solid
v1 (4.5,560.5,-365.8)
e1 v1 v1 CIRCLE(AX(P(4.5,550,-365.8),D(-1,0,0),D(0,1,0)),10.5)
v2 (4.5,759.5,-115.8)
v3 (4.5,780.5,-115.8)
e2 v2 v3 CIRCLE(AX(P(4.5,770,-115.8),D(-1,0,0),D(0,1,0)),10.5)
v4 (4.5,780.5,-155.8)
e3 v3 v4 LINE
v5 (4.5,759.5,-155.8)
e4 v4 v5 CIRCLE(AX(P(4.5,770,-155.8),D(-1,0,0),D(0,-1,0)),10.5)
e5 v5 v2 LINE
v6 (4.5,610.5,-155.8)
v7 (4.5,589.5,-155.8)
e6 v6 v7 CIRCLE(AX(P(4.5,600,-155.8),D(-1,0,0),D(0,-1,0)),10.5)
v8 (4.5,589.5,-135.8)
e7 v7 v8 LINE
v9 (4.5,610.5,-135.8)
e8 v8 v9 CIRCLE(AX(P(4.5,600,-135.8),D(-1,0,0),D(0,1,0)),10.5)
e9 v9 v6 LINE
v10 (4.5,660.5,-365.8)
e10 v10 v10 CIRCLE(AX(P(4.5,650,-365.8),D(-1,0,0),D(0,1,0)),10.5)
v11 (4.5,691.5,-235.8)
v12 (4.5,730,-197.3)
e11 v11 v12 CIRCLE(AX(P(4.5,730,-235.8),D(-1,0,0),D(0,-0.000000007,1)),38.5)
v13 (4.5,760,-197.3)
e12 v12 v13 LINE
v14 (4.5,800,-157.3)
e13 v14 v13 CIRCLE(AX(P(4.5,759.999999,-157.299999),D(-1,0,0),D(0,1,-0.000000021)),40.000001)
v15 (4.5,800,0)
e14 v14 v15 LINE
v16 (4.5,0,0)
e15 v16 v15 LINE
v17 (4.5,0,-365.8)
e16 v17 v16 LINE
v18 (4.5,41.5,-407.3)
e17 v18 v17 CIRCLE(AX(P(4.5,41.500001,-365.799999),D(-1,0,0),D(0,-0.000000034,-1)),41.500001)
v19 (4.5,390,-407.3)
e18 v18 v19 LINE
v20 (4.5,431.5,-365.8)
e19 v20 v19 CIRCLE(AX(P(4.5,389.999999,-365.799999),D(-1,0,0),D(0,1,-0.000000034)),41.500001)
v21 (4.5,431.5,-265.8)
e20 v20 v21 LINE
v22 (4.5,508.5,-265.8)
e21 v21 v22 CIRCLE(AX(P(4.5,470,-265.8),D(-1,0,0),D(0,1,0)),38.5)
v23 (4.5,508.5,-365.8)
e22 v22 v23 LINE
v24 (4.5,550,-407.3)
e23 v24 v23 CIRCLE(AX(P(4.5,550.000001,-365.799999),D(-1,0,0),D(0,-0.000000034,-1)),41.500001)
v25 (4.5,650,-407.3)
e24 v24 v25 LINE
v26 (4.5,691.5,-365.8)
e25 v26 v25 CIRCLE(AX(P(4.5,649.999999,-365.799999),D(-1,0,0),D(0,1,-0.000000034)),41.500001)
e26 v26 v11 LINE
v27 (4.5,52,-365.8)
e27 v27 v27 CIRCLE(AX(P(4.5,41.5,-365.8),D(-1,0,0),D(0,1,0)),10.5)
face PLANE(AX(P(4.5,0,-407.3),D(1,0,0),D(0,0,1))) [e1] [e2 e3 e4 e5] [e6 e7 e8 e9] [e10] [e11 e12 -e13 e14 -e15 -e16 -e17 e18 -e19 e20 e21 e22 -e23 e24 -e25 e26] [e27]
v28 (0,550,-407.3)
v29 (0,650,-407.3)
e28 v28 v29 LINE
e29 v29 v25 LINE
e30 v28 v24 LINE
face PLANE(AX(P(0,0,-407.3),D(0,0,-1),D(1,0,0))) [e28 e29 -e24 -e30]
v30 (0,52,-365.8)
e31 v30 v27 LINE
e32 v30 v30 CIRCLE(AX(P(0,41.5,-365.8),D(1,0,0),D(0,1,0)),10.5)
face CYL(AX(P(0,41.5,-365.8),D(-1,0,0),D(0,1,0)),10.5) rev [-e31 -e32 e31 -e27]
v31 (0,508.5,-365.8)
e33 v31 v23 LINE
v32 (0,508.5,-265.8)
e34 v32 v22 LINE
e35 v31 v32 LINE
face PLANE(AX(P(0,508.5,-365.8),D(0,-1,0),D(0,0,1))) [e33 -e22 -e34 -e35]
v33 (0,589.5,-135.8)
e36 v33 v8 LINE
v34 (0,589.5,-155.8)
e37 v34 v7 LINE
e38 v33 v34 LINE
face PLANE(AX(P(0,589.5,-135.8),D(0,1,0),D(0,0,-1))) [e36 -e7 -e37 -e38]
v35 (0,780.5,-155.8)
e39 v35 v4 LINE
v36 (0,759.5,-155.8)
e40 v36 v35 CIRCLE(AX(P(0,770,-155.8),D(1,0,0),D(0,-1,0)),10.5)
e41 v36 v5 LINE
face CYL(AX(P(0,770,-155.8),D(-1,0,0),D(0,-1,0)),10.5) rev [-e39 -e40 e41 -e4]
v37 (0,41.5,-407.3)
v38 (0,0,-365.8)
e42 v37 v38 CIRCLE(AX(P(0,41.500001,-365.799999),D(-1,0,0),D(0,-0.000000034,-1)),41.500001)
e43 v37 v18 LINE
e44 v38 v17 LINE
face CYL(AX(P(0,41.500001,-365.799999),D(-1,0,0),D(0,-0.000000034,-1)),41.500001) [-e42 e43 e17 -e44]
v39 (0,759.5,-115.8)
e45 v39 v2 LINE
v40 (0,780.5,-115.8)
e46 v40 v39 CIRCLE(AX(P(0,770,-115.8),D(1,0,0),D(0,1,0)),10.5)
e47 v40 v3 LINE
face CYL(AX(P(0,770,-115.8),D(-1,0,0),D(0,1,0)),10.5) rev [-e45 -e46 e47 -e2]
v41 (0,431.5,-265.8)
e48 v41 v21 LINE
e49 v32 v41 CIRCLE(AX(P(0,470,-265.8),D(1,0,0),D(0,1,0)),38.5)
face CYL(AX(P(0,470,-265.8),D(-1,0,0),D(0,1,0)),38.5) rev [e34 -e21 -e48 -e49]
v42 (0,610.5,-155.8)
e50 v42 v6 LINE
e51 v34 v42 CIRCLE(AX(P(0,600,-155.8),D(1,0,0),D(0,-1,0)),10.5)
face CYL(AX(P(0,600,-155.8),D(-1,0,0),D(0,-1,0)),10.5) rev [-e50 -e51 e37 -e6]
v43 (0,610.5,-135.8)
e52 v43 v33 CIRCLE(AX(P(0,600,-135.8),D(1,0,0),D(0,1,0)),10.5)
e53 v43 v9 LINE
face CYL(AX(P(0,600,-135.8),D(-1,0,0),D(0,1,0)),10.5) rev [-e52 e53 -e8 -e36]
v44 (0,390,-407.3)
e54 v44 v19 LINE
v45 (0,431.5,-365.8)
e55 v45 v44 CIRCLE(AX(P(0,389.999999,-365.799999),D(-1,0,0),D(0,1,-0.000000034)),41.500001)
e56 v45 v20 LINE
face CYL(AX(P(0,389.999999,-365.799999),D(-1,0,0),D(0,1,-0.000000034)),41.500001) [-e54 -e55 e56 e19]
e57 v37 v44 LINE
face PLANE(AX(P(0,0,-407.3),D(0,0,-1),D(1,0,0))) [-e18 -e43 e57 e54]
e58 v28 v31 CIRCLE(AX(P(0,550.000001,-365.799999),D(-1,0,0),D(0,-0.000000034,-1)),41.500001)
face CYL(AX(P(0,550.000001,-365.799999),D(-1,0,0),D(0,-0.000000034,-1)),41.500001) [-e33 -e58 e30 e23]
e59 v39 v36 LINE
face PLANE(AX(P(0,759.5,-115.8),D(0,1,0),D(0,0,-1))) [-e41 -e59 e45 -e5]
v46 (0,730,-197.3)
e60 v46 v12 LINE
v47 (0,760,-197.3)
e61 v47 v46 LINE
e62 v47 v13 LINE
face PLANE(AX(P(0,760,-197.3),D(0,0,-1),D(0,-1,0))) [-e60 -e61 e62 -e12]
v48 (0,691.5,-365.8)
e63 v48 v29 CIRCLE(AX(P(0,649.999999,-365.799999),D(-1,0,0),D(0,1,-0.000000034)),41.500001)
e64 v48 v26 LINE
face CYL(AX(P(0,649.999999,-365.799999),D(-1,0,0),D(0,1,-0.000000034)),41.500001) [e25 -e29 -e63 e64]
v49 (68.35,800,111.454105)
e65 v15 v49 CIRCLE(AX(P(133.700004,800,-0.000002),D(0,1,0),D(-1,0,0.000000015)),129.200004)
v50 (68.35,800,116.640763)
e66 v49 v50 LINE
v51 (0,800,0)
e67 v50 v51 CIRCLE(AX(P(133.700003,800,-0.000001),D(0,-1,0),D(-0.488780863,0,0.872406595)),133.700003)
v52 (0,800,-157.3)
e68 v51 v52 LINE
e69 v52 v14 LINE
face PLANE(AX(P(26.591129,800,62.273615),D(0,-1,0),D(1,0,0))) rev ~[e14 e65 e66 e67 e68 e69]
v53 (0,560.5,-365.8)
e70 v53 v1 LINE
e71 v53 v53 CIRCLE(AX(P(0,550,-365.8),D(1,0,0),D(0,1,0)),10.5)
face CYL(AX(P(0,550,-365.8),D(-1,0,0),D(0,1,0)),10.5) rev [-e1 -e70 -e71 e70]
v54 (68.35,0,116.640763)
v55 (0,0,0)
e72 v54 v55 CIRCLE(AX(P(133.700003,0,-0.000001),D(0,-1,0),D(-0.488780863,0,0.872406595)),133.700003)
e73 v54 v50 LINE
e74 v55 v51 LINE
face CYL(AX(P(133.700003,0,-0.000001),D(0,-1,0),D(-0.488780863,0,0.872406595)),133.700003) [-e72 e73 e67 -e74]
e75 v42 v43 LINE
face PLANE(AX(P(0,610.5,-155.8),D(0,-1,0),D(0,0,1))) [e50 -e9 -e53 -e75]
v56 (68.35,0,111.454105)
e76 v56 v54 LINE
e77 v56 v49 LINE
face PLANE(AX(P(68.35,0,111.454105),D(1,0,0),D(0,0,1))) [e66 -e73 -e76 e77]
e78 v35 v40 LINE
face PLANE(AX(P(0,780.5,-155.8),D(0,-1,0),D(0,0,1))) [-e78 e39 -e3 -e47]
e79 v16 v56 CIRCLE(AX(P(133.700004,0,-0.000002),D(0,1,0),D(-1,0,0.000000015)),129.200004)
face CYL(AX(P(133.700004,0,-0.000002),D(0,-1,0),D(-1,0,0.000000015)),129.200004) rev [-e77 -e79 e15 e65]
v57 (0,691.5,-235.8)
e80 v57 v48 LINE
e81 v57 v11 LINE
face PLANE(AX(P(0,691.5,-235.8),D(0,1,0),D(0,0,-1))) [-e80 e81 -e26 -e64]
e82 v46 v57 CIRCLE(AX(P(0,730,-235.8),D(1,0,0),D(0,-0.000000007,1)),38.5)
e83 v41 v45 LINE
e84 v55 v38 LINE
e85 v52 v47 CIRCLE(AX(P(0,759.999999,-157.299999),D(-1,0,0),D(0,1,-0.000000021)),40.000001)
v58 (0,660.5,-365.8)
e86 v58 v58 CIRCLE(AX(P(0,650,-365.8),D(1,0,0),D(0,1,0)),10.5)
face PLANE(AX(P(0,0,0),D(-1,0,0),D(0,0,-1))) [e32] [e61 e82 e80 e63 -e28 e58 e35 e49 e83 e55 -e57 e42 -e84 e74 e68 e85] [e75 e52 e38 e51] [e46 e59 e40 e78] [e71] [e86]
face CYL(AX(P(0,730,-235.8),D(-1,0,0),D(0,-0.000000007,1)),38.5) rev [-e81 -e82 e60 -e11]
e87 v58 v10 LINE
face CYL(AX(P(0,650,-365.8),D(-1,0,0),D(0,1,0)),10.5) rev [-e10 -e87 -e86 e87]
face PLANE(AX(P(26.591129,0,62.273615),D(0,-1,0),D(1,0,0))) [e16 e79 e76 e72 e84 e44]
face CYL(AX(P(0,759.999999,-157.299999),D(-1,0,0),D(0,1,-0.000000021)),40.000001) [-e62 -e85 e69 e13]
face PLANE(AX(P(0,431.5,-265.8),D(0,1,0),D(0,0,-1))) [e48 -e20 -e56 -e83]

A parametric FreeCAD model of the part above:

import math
import FreeCAD as App
import Part
import Sketcher
Q = App.Units.Quantity

doc = App.newDocument("Part")
body = doc.addObject("PartDesign::Body", "Body")

sketch1 = body.newObject("Sketcher::SketchObject", "Sketch")
sketch1.AttachmentSupport = (doc.getObject("XZ_Plane"), [""])
sketch1.MapMode = "FlatFace"
sketch1.addGeometry([
    Part.LineSegment(App.Vector(68.3, 111.5, 0), App.Vector(68.3, 116.6, 0)),
    Part.ArcOfCircle(Part.Circle(App.Vector(133.7, 0, 0), App.Vector(0, 0, 1), 133.7), math.radians(119), math.radians(180)),
    Part.LineSegment(App.Vector(0, 0, 0), App.Vector(0, -407.3, 0)),
    Part.LineSegment(App.Vector(0, -407.3, 0), App.Vector(4.5, -407.3, 0)),
    Part.LineSegment(App.Vector(4.5, -407.3, 0), App.Vector(4.5, 0, 0)),
    Part.ArcOfCircle(Part.Circle(App.Vector(133.7, 0, 0), App.Vector(0, 0, 1), 129.2), math.radians(120), math.radians(180)),
], False)
sketch1.addConstraint([
    Sketcher.Constraint("Coincident", 0, 2, 1, 1),
    Sketcher.Constraint("Tangent", 1, 2, 2, 1),
    Sketcher.Constraint("Coincident", 2, 2, 3, 1),
    Sketcher.Constraint("Coincident", 3, 2, 4, 1),
    Sketcher.Constraint("Tangent", 4, 2, 5, 2),
    Sketcher.Constraint("Coincident", 5, 1, 0, 1),
    Sketcher.Constraint("Vertical", 0),
    Sketcher.Constraint("Vertical", 2),
    Sketcher.Constraint("Horizontal", 3),
    Sketcher.Constraint("Vertical", 4),
    Sketcher.Constraint("Coincident", 1, 2, -1, 1),
    Sketcher.Constraint("Coincident", 5, 3, 1, 3),
    Sketcher.Constraint("DistanceX", 3, 1, 3, 2, Q("4.5 mm")),
    Sketcher.Constraint("DistanceY", 2, 2, 2, 1, Q("407.3 mm")),
    Sketcher.Constraint("DistanceX", -1, 1, 0, 2, Q("68.35 mm")),
    Sketcher.Constraint("Radius", 1, Q("133.700003 mm")),
])
pad1 = body.newObject("PartDesign::Pad", "Pad")
pad1.Profile = sketch1
pad1.Length = 800
pad1.Reversed = True

sketch2 = body.newObject("Sketcher::SketchObject", "Sketch001")
sketch2.AttachmentSupport = (doc.getObject("YZ_Plane"), [""])
sketch2.MapMode = "FlatFace"
sketch2.addGeometry([
    Part.ArcOfCircle(Part.Circle(App.Vector(390, -366, 0), App.Vector(0, 0, 1), 42), math.radians(-90), math.radians(0)),
    Part.LineSegment(App.Vector(390, -407, 0), App.Vector(550, -407, 0)),
    Part.ArcOfCircle(Part.Circle(App.Vector(550, -366, 0), App.Vector(0, 0, 1), 42), math.radians(-180), math.radians(-90)),
    Part.LineSegment(App.Vector(508, -366, 0), App.Vector(508, -266, 0)),
    Part.ArcOfCircle(Part.Circle(App.Vector(470, -266, 0), App.Vector(0, 0, 1), 38), math.radians(0), math.radians(180)),
    Part.LineSegment(App.Vector(432, -266, 0), App.Vector(432, -366, 0)),
    Part.LineSegment(App.Vector(800, -407, 0), App.Vector(800, -157, 0)),
    Part.ArcOfCircle(Part.Circle(App.Vector(760, -157, 0), App.Vector(0, 0, 1), 40), math.radians(-90), math.radians(0)),
    Part.LineSegment(App.Vector(760, -197, 0), App.Vector(730, -197, 0)),
    Part.ArcOfCircle(Part.Circle(App.Vector(730, -236, 0), App.Vector(0, 0, 1), 39), math.radians(90), math.radians(180)),
    Part.LineSegment(App.Vector(692, -236, 0), App.Vector(692, -366, 0)),
    Part.ArcOfCircle(Part.Circle(App.Vector(650, -366, 0), App.Vector(0, 0, 1), 42), math.radians(-90), math.radians(0)),
    Part.LineSegment(App.Vector(650, -407, 0), App.Vector(800, -407, 0)),
    Part.ArcOfCircle(Part.Circle(App.Vector(42, -366, 0), App.Vector(0, 0, 1), 42), math.radians(-180), math.radians(-90)),
    Part.LineSegment(App.Vector(0, -366, 0), App.Vector(0, -407, 0)),
    Part.LineSegment(App.Vector(0, -407, 0), App.Vector(42, -407, 0)),
    Part.Circle(App.Vector(42, -366, 0), App.Vector(0, 0, 1), 10),
    Part.ArcOfCircle(Part.Circle(App.Vector(770, -116, 0), App.Vector(0, 0, 1), 10), math.radians(0), math.radians(180)),
    Part.LineSegment(App.Vector(760, -116, 0), App.Vector(760, -156, 0)),
    Part.ArcOfCircle(Part.Circle(App.Vector(770, -156, 0), App.Vector(0, 0, 1), 10), math.radians(180), math.radians(360)),
    Part.LineSegment(App.Vector(780, -156, 0), App.Vector(780, -116, 0)),
    Part.ArcOfCircle(Part.Circle(App.Vector(600, -136, 0), App.Vector(0, 0, 1), 10), math.radians(0), math.radians(180)),
    Part.LineSegment(App.Vector(590, -136, 0), App.Vector(590, -156, 0)),
    Part.ArcOfCircle(Part.Circle(App.Vector(600, -156, 0), App.Vector(0, 0, 1), 10), math.radians(180), math.radians(360)),
    Part.LineSegment(App.Vector(610, -156, 0), App.Vector(610, -136, 0)),
    Part.Circle(App.Vector(650, -366, 0), App.Vector(0, 0, 1), 10),
    Part.Circle(App.Vector(550, -366, 0), App.Vector(0, 0, 1), 10),
], False)
sketch2.addConstraint([
    Sketcher.Constraint("Tangent", 0, 1, 1, 1),
    Sketcher.Constraint("Tangent", 1, 2, 2, 2),
    Sketcher.Constraint("Tangent", 2, 1, 3, 1),
    Sketcher.Constraint("Tangent", 3, 2, 4, 1),
    Sketcher.Constraint("Tangent", 4, 2, 5, 1),
    Sketcher.Constraint("Tangent", 5, 2, 0, 2),
    Sketcher.Constraint("Tangent", 6, 2, 7, 2),
    Sketcher.Constraint("Tangent", 7, 1, 8, 1),
    Sketcher.Constraint("Tangent", 8, 2, 9, 1),
    Sketcher.Constraint("Tangent", 9, 2, 10, 1),
    Sketcher.Constraint("Tangent", 10, 2, 11, 2),
    Sketcher.Constraint("Tangent", 11, 1, 12, 1),
    Sketcher.Constraint("Coincident", 12, 2, 6, 1),
    Sketcher.Constraint("Tangent", 13, 1, 14, 1),
    Sketcher.Constraint("Coincident", 14, 2, 15, 1),
    Sketcher.Constraint("Tangent", 15, 2, 13, 2),
    Sketcher.Constraint("Tangent", 17, 2, 18, 1),
    Sketcher.Constraint("Tangent", 18, 2, 19, 1),
    Sketcher.Constraint("Tangent", 19, 2, 20, 1),
    Sketcher.Constraint("Tangent", 20, 2, 17, 1),
    Sketcher.Constraint("Tangent", 21, 2, 22, 1),
    Sketcher.Constraint("Tangent", 22, 2, 23, 1),
    Sketcher.Constraint("Tangent", 23, 2, 24, 1),
    Sketcher.Constraint("Tangent", 24, 2, 21, 1),
    Sketcher.Constraint("Horizontal", 1),
    Sketcher.Constraint("Vertical", 3),
    Sketcher.Constraint("Vertical", 5),
    Sketcher.Constraint("Vertical", 6),
    Sketcher.Constraint("Horizontal", 8),
    Sketcher.Constraint("Vertical", 10),
    Sketcher.Constraint("Horizontal", 12),
    Sketcher.Constraint("Vertical", 14),
    Sketcher.Constraint("Horizontal", 15),
    Sketcher.Constraint("Vertical", 18),
    Sketcher.Constraint("Vertical", 20),
    Sketcher.Constraint("Vertical", 22),
    Sketcher.Constraint("Vertical", 24),
    Sketcher.Constraint("Coincident", 16, 3, 13, 3),
    Sketcher.Constraint("Coincident", 25, 3, 11, 3),
    Sketcher.Constraint("Coincident", 26, 3, 2, 3),
    Sketcher.Constraint("Equal", 0, 2),
    Sketcher.Constraint("Equal", 4, 9),
    Sketcher.Constraint("Equal", 2, 11),
    Sketcher.Constraint("Equal", 11, 13),
    Sketcher.Constraint("Equal", 16, 17),
    Sketcher.Constraint("Equal", 19, 21),
    Sketcher.Constraint("Equal", 23, 25),
    Sketcher.Constraint("Equal", 25, 26),
    Sketcher.Constraint("PointOnObject", 13, 1, -2),
    Sketcher.Constraint("Horizontal", 2, 3, 11, 3),
    Sketcher.Constraint("Horizontal", 11, 3, 13, 3),
    Sketcher.Constraint("Horizontal", 19, 3, 23, 3),
    Sketcher.Constraint("Diameter", 16, Q("21 mm")),
    Sketcher.Constraint("Radius", 7, Q("40.000001 mm")),
    Sketcher.Constraint("Radius", 0, Q("41.500001 mm")),
    Sketcher.Constraint("Radius", 4, Q("38.5 mm")),
    Sketcher.Constraint("DistanceX", 8, 2, 8, 1, Q("30 mm")),
    Sketcher.Constraint("DistanceY", 3, 1, 3, 2, Q("100 mm")),
    Sketcher.Constraint("DistanceY", 6, 1, 6, 2, Q("250 mm")),
    Sketcher.Constraint("DistanceY", 18, 2, 18, 1, Q("40 mm")),
    Sketcher.Constraint("DistanceY", 22, 2, 22, 1, Q("20 mm")),
    Sketcher.Constraint("DistanceX", -1, 1, 0, 3, Q("389.999999 mm")),
    Sketcher.Constraint("DistanceX", -1, 1, 7, 3, Q("759.999999 mm")),
    Sketcher.Constraint("DistanceX", -1, 1, 17, 3, Q("770 mm")),
    Sketcher.Constraint("DistanceX", -1, 1, 21, 3, Q("600 mm")),
    Sketcher.Constraint("DistanceY", 9, 3, 17, 3, Q("120 mm")),
    Sketcher.Constraint("DistanceY", 0, 3, -1, 1, Q("365.799999 mm")),
])
pocket1 = body.newObject("PartDesign::Pocket", "Pocket")
pocket1.Profile = sketch2
pocket1.Length = 25
pocket1.Reversed = True

doc.recompute()
